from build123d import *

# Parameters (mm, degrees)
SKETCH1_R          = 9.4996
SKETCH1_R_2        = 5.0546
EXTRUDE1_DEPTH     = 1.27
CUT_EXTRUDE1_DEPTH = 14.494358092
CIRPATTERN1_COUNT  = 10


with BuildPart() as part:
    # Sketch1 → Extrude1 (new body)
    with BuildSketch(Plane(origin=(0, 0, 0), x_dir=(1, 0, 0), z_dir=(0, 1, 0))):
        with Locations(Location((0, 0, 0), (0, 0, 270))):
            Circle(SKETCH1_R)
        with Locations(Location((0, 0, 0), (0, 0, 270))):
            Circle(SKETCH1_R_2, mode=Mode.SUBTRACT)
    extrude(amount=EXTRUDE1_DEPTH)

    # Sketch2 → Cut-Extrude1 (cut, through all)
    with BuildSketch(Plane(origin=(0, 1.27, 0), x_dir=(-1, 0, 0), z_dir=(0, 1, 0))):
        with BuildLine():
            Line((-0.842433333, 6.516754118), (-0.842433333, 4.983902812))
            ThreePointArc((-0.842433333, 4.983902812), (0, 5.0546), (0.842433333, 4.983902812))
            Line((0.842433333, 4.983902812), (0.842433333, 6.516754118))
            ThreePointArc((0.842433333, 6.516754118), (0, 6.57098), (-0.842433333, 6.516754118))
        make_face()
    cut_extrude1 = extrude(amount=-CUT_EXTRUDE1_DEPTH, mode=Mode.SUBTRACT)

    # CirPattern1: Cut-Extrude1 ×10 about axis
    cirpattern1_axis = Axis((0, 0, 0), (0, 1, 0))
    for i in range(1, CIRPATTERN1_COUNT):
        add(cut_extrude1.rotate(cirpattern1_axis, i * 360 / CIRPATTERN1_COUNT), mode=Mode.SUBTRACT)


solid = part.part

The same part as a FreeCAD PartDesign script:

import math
import FreeCAD as App
import Part
import Sketcher
Q = App.Units.Quantity

doc = App.newDocument("Part")
body = doc.addObject("PartDesign::Body", "Body")

sketch1 = doc.addObject("Sketcher::SketchObject", "Sketch")
body.addObject(sketch1)
sketch1.AttachmentSupport = (doc.XZ_Plane, [""])
sketch1.MapMode = "FlatFace"
sketch1.addGeometry(Part.Circle(App.Vector(0, 0, 0), App.Vector(0, 0, 1), 9.4996), False)
sketch1.addGeometry(Part.Circle(App.Vector(0, 0, 0), App.Vector(0, 0, 1), 5.0546), False)
sketch1.addConstraint(Sketcher.Constraint("Coincident", 0, 3, -1, 1))
sketch1.addConstraint(Sketcher.Constraint("Coincident", 1, 3, -1, 1))
sketch1.addConstraint(Sketcher.Constraint("Diameter", 0, Q("0.748 in")))
sketch1.addConstraint(Sketcher.Constraint("Diameter", 1, Q("0.398 in")))
pad1 = doc.addObject("PartDesign::Pad", "Pad")
body.addObject(pad1)
pad1.Profile = sketch1
pad1.Length = Q("0.05 in")
pad1.Reversed = True

sketch2 = doc.addObject("Sketcher::SketchObject", "Sketch001")
body.addObject(sketch2)
sketch2.AttachmentSupport = (doc.XZ_Plane, [""])
sketch2.MapMode = "FlatFace"
sketch2.AttachmentOffset = App.Placement(App.Vector(0, 0, -0.05 * 25.4), App.Rotation())
sketch2.addGeometry(Part.LineSegment(App.Vector(0.842433, 6.516754, 0), App.Vector(0.842433, 4.983903, 0)), False)
sketch2.addGeometry(Part.ArcOfCircle(Part.Circle(App.Vector(0, 0, 0), App.Vector(0, 0, 1), 5.0546), math.radians(80.405932), math.radians(99.594068)), False)
sketch2.addGeometry(Part.LineSegment(App.Vector(-0.842433, 4.983903, 0), App.Vector(-0.842433, 6.516754, 0)), False)
sketch2.addGeometry(Part.ArcOfCircle(Part.Circle(App.Vector(0, 0, 0), App.Vector(0, 0, 1), 6.57098), math.radians(82.634114), math.radians(97.365886)), False)
sketch2.addConstraint(Sketcher.Constraint("Coincident", 0, 2, 1, 1))
sketch2.addConstraint(Sketcher.Constraint("Coincident", 1, 2, 2, 1))
sketch2.addConstraint(Sketcher.Constraint("Coincident", 2, 2, 3, 2))
sketch2.addConstraint(Sketcher.Constraint("Coincident", 3, 1, 0, 1))
sketch2.addConstraint(Sketcher.Constraint("Vertical", 0))
sketch2.addConstraint(Sketcher.Constraint("Vertical", 2))
sketch2.addConstraint(Sketcher.Constraint("Coincident", 1, 3, -1, 1))
sketch2.addConstraint(Sketcher.Constraint("Coincident", 3, 3, -1, 1))
sketch2.addConstraint(Sketcher.Constraint("Horizontal", 0, 2, 1, 2))
sketch2.addConstraint(Sketcher.Constraint("Radius", 1, Q("0.199 in")))
sketch2.addConstraint(Sketcher.Constraint("Radius", 3, Q("0.2587 in")))
sketch2.addConstraint(Sketcher.Constraint("DistanceY", 0, 2, 0, 1, Q("1.532851 mm")))
pocket1 = doc.addObject("PartDesign::Pocket", "Pocket")
body.addObject(pocket1)
pocket1.Profile = sketch2
pocket1.Type = "ThroughAll"
pocket1.Reversed = True
doc.recompute()

polarpattern = doc.addObject("PartDesign::PolarPattern", "PolarPattern")
body.addObject(polarpattern)
polarpattern.Originals = [pocket1]
polarpattern.Axis = (doc.Y_Axis, [""])
polarpattern.Angle = 360
polarpattern.Occurrences = 10
body.Tip = polarpattern

doc.recompute()
